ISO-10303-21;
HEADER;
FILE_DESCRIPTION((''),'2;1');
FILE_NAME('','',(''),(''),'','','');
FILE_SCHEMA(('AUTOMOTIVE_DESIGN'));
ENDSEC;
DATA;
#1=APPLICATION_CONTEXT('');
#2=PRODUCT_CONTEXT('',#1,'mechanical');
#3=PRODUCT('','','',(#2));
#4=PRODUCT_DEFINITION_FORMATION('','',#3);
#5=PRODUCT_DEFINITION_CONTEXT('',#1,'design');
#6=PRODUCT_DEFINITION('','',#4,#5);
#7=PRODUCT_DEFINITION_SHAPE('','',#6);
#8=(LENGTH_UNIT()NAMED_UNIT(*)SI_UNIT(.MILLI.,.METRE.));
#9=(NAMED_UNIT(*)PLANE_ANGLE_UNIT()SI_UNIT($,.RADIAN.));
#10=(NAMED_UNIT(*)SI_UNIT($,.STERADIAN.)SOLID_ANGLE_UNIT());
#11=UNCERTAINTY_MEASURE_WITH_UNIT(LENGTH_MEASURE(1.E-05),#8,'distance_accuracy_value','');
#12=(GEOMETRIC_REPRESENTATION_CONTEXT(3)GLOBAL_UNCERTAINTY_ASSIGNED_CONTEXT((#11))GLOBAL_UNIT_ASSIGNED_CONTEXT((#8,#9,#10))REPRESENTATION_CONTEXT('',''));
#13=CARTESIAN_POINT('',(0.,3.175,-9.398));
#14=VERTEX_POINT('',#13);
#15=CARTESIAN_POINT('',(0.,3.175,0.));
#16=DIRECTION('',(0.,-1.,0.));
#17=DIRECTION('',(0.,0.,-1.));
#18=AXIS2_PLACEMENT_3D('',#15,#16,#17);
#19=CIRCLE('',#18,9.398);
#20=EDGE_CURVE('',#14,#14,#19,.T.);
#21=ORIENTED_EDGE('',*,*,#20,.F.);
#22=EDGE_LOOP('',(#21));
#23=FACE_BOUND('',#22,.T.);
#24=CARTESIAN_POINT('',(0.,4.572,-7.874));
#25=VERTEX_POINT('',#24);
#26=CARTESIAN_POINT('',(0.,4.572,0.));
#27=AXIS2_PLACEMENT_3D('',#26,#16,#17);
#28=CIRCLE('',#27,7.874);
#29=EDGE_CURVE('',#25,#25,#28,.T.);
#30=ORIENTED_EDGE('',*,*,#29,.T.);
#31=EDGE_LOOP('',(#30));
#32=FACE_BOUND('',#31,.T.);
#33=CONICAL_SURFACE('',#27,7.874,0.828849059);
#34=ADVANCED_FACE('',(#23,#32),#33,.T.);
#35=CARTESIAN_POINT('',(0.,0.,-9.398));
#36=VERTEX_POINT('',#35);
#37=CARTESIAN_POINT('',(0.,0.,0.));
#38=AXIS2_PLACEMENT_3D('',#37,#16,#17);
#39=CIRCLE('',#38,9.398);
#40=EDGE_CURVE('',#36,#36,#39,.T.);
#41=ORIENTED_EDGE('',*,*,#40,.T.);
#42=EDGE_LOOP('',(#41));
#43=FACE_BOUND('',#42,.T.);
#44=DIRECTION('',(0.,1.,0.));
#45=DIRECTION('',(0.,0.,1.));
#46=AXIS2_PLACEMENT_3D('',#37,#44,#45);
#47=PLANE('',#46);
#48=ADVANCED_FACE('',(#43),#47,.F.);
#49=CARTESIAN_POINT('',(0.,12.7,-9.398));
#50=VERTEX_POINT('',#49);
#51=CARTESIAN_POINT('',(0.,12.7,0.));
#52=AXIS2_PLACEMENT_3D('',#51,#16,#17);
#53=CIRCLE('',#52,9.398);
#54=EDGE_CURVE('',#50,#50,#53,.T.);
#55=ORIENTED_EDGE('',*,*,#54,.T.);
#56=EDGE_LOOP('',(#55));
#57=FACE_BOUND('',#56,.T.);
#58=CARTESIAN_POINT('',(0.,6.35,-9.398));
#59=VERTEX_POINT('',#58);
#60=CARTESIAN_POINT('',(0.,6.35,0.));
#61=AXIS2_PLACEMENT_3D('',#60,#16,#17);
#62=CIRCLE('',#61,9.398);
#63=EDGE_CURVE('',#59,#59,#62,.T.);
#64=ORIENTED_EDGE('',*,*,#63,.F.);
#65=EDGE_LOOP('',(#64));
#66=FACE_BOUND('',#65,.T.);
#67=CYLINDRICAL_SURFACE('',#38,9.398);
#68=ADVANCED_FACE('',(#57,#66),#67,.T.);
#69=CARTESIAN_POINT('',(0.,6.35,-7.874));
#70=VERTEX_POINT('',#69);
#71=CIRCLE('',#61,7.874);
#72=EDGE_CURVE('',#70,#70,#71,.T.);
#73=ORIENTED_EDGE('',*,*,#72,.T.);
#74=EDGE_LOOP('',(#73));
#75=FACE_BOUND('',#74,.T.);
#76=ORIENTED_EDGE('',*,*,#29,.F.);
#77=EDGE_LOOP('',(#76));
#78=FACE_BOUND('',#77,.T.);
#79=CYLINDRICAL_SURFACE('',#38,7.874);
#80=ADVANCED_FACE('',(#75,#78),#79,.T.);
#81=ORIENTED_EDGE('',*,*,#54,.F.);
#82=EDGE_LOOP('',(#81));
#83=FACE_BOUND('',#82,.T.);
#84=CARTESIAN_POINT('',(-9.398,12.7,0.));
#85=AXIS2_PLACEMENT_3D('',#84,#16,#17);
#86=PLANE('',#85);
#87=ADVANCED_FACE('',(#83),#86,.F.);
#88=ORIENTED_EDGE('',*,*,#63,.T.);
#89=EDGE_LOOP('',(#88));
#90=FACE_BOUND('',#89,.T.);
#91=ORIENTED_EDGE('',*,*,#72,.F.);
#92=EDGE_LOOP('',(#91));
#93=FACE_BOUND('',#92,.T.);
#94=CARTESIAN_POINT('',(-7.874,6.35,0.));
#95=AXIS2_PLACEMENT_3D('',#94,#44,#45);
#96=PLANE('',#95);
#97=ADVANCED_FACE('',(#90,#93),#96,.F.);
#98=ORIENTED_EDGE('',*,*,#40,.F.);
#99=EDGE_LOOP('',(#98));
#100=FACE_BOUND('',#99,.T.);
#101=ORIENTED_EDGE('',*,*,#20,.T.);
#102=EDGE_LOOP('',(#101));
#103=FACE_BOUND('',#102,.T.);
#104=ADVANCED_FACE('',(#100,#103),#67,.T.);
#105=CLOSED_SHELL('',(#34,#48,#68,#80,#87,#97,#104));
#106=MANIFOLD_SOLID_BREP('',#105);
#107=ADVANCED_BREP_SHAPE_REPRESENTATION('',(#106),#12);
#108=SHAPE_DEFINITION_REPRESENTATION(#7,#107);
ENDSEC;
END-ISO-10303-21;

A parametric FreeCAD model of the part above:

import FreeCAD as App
import Part
import Sketcher

V = App.Vector
Q = App.Units.Quantity


def add_polygon(sketch, points):
    """Adds a closed chain of lines whose ends are joined by coincident constraints."""
    first, n = sketch.GeometryCount, len(points)
    for a, b in zip(points, points[1:] + points[:1]):
        sketch.addGeometry(Part.LineSegment(App.Vector(*a, 0), App.Vector(*b, 0)), False)
    for i in range(n):
        sketch.addConstraint(Sketcher.Constraint("Coincident", first + i, 2, first + (i + 1) % n, 1))

doc = App.newDocument("Part")
params = doc.addObject("Spreadsheet::Sheet", "Params")
for row, (alias, value) in enumerate([
    ("sketch1_height", "0.5 in"),
    ("sketch1_width", "0.37 in"),
    ("sketch1_width2", "0.06 in"),
    ("sketch1_height2", "0.25 in"),
    ("sketch1_height3", "0.07 in"),
    ("revolution_angle", "360 deg"),
], start=1):
    params.set(f"A{row}", alias)
    params.set(f"B{row}", "=" + value)
    params.setAlias(f"B{row}", alias)

body = doc.addObject("PartDesign::Body", "Body")

# Sketch on XY plane
sketch1 = doc.addObject("Sketcher::SketchObject", "Sketch")
body.addObject(sketch1)
sketch1.AttachmentSupport = (doc.XY_Plane, [""])
sketch1.MapMode = "FlatFace"
add_polygon(sketch1, [(-9.398, 0), (0, 0), (0, 12.7), (-9.398, 12.7), (-9.398, 6.35), (-7.874, 6.35), (-7.874, 4.572), (-9.398, 3.175)])  # lines 0-7
sketch1.addConstraint(Sketcher.Constraint("Horizontal", 0))
sketch1.addConstraint(Sketcher.Constraint("Vertical", 1))
sketch1.addConstraint(Sketcher.Constraint("Horizontal", 2))
sketch1.addConstraint(Sketcher.Constraint("Vertical", 3))
sketch1.addConstraint(Sketcher.Constraint("Horizontal", 4))
sketch1.addConstraint(Sketcher.Constraint("Vertical", 5))
sketch1.addConstraint(Sketcher.Constraint("Vertical", 7))
sketch1.addConstraint(Sketcher.Constraint("Coincident", 0, 2, -1, 1))
sketch1.addConstraint(Sketcher.Constraint("Vertical", 3, 2, 6, 2))
sketch1.addConstraint(Sketcher.Constraint("DistanceY", 1, 1, 1, 2, Q("0.5 in")))
sketch1.addConstraint(Sketcher.Constraint("DistanceX", 0, 1, 0, 2, Q("0.37 in")))
sketch1.addConstraint(Sketcher.Constraint("DistanceX", 4, 1, 4, 2, Q("0.06 in")))
sketch1.addConstraint(Sketcher.Constraint("DistanceY", 3, 2, 3, 1, Q("0.25 in")))
sketch1.addConstraint(Sketcher.Constraint("DistanceY", 5, 2, 5, 1, Q("0.07 in")))
sketch1.addConstraint(Sketcher.Constraint("DistanceY", 7, 2, 7, 1, Q("0.125 in")))
sketch1.setExpression("Constraints[17]", "Params.sketch1_height")
sketch1.setExpression("Constraints[18]", "Params.sketch1_width")
sketch1.setExpression("Constraints[19]", "Params.sketch1_width2")
sketch1.setExpression("Constraints[20]", "Params.sketch1_height2")
sketch1.setExpression("Constraints[21]", "Params.sketch1_height3")
revolution = doc.addObject("PartDesign::Revolution", "Revolution")
body.addObject(revolution)
revolution.Profile = sketch1
revolution.ReferenceAxis = (sketch1, ["V_Axis"])
revolution.setExpression("Angle", "Params.revolution_angle")

doc.recompute()
